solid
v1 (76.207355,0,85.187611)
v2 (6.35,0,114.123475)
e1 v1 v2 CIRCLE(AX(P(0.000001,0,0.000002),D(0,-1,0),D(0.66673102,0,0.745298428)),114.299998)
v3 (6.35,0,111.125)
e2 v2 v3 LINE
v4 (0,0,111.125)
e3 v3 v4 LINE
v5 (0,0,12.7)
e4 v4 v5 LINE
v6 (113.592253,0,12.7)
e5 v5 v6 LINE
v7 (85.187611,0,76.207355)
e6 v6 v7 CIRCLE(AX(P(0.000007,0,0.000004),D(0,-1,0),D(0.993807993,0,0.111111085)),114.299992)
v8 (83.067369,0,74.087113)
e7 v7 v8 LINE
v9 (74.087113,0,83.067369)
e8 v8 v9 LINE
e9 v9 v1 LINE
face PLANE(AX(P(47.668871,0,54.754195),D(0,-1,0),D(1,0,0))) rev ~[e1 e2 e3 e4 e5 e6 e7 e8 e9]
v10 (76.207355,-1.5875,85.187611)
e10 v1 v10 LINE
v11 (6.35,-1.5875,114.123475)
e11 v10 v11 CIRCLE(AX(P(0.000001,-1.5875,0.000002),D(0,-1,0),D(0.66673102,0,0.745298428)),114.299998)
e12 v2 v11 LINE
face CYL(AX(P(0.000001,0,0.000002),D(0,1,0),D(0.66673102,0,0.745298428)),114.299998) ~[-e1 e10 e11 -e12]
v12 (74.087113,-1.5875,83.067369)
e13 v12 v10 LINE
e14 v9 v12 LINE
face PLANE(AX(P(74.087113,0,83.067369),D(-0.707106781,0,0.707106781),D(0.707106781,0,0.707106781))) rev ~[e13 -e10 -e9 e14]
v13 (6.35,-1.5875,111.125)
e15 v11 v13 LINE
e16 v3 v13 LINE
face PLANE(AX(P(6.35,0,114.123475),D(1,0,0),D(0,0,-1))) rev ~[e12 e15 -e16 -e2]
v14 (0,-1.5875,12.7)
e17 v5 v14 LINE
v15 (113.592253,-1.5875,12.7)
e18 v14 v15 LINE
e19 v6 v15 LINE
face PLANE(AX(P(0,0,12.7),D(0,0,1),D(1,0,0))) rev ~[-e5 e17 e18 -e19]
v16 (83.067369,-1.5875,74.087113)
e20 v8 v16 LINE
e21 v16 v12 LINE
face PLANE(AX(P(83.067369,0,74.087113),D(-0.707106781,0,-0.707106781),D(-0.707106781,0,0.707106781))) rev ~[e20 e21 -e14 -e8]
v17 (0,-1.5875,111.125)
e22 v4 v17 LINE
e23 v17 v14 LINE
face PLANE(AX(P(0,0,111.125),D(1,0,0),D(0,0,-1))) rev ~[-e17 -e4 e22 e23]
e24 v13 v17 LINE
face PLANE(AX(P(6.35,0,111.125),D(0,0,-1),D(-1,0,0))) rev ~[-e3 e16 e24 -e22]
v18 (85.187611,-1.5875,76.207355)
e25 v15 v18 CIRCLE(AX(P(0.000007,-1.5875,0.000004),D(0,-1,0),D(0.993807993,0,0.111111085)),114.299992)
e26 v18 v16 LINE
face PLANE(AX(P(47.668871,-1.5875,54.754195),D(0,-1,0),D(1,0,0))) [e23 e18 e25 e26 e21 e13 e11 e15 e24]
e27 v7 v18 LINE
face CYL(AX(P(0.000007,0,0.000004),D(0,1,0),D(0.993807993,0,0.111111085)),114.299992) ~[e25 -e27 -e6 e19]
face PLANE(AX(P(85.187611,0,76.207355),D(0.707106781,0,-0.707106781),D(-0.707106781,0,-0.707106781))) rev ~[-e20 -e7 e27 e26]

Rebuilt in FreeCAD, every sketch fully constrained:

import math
import FreeCAD as App
import Part
import Sketcher
Q = App.Units.Quantity

doc = App.newDocument("Part")
body = doc.addObject("PartDesign::Body", "Body")

# Sketch on XZ plane
sketch1 = body.newObject("Sketcher::SketchObject", "Sketch")
sketch1.AttachmentSupport = (doc.getObject("XZ_Plane"), [""])
sketch1.MapMode = "FlatFace"
sketch1.addGeometry([
    Part.LineSegment(App.Vector(0, 12.7, 0), App.Vector(113.592253, 12.7, 0)),  # 0
    Part.ArcOfCircle(Part.Circle(App.Vector(0.000007, 0.000004, 0), App.Vector(0, 0, 1), 114.299992), math.radians(6.379369), math.radians(41.815262)),  # 1
    Part.LineSegment(App.Vector(85.187611, 76.207355, 0), App.Vector(83.067369, 74.087113, 0)),  # 2
    Part.LineSegment(App.Vector(83.067369, 74.087113, 0), App.Vector(74.087113, 83.067369, 0)),  # 3
    Part.LineSegment(App.Vector(74.087113, 83.067369, 0), App.Vector(76.207355, 85.187611, 0)),  # 4
    Part.ArcOfCircle(Part.Circle(App.Vector(0.000001, 0.000002, 0), App.Vector(0, 0, 1), 114.299998), math.radians(48.184738), math.radians(86.815262)),  # 5
    Part.LineSegment(App.Vector(6.35, 114.123475, 0), App.Vector(6.35, 111.125, 0)),  # 6
    Part.LineSegment(App.Vector(6.35, 111.125, 0), App.Vector(0, 111.125, 0)),  # 7
    Part.LineSegment(App.Vector(0, 111.125, 0), App.Vector(0, 12.7, 0)),  # 8
], False)
sketch1.addConstraint([
    Sketcher.Constraint("Coincident", 0, 2, 1, 1),
    Sketcher.Constraint("Coincident", 1, 2, 2, 1),
    Sketcher.Constraint("Coincident", 2, 2, 3, 1),
    Sketcher.Constraint("Coincident", 3, 2, 4, 1),
    Sketcher.Constraint("Coincident", 4, 2, 5, 1),
    Sketcher.Constraint("Coincident", 5, 2, 6, 1),
    Sketcher.Constraint("Coincident", 6, 2, 7, 1),
    Sketcher.Constraint("Coincident", 7, 2, 8, 1),
    Sketcher.Constraint("Coincident", 8, 2, 0, 1),
    Sketcher.Constraint("Horizontal", 0),
    Sketcher.Constraint("Vertical", 6),
    Sketcher.Constraint("Horizontal", 7),
    Sketcher.Constraint("Vertical", 8),
    Sketcher.Constraint("Coincident", 1, 3, -1, 1),
    Sketcher.Constraint("Coincident", 5, 3, -1, 1),
    Sketcher.Constraint("PointOnObject", 7, 2, -2),
    Sketcher.Constraint("Radius", 5, Q("4.4999999 in")),
    Sketcher.Constraint("Distance", 3, Q("0.5 in")),
    Sketcher.Constraint("DistanceX", 7, 2, 7, 1, Q("0.25 in")),
    Sketcher.Constraint("DistanceY", -1, 1, 0, 2, Q("0.5 in")),
    Sketcher.Constraint("DistanceY", 8, 2, 8, 1, Q("3.875 in")),
    Sketcher.Constraint("Radius", 1, Q("114.299992 mm")),
    Sketcher.Constraint("DistanceY", 2, 2, 4, 2, Q("11.100498 mm")),
    Sketcher.Constraint("DistanceX", -1, 1, 1, 2, Q("85.187611 mm")),
    Sketcher.Constraint("DistanceX", -1, 1, 2, 2, Q("83.067369 mm")),
    Sketcher.Constraint("DistanceY", -1, 1, 3, 2, Q("83.067369 mm")),
    Sketcher.Constraint("DistanceY", -1, 1, 4, 2, Q("85.187611 mm")),
])
pad1 = body.newObject("PartDesign::Pad", "Pad")
pad1.Profile = sketch1
pad1.Length = Q("0.0625 in")

doc.recompute()
